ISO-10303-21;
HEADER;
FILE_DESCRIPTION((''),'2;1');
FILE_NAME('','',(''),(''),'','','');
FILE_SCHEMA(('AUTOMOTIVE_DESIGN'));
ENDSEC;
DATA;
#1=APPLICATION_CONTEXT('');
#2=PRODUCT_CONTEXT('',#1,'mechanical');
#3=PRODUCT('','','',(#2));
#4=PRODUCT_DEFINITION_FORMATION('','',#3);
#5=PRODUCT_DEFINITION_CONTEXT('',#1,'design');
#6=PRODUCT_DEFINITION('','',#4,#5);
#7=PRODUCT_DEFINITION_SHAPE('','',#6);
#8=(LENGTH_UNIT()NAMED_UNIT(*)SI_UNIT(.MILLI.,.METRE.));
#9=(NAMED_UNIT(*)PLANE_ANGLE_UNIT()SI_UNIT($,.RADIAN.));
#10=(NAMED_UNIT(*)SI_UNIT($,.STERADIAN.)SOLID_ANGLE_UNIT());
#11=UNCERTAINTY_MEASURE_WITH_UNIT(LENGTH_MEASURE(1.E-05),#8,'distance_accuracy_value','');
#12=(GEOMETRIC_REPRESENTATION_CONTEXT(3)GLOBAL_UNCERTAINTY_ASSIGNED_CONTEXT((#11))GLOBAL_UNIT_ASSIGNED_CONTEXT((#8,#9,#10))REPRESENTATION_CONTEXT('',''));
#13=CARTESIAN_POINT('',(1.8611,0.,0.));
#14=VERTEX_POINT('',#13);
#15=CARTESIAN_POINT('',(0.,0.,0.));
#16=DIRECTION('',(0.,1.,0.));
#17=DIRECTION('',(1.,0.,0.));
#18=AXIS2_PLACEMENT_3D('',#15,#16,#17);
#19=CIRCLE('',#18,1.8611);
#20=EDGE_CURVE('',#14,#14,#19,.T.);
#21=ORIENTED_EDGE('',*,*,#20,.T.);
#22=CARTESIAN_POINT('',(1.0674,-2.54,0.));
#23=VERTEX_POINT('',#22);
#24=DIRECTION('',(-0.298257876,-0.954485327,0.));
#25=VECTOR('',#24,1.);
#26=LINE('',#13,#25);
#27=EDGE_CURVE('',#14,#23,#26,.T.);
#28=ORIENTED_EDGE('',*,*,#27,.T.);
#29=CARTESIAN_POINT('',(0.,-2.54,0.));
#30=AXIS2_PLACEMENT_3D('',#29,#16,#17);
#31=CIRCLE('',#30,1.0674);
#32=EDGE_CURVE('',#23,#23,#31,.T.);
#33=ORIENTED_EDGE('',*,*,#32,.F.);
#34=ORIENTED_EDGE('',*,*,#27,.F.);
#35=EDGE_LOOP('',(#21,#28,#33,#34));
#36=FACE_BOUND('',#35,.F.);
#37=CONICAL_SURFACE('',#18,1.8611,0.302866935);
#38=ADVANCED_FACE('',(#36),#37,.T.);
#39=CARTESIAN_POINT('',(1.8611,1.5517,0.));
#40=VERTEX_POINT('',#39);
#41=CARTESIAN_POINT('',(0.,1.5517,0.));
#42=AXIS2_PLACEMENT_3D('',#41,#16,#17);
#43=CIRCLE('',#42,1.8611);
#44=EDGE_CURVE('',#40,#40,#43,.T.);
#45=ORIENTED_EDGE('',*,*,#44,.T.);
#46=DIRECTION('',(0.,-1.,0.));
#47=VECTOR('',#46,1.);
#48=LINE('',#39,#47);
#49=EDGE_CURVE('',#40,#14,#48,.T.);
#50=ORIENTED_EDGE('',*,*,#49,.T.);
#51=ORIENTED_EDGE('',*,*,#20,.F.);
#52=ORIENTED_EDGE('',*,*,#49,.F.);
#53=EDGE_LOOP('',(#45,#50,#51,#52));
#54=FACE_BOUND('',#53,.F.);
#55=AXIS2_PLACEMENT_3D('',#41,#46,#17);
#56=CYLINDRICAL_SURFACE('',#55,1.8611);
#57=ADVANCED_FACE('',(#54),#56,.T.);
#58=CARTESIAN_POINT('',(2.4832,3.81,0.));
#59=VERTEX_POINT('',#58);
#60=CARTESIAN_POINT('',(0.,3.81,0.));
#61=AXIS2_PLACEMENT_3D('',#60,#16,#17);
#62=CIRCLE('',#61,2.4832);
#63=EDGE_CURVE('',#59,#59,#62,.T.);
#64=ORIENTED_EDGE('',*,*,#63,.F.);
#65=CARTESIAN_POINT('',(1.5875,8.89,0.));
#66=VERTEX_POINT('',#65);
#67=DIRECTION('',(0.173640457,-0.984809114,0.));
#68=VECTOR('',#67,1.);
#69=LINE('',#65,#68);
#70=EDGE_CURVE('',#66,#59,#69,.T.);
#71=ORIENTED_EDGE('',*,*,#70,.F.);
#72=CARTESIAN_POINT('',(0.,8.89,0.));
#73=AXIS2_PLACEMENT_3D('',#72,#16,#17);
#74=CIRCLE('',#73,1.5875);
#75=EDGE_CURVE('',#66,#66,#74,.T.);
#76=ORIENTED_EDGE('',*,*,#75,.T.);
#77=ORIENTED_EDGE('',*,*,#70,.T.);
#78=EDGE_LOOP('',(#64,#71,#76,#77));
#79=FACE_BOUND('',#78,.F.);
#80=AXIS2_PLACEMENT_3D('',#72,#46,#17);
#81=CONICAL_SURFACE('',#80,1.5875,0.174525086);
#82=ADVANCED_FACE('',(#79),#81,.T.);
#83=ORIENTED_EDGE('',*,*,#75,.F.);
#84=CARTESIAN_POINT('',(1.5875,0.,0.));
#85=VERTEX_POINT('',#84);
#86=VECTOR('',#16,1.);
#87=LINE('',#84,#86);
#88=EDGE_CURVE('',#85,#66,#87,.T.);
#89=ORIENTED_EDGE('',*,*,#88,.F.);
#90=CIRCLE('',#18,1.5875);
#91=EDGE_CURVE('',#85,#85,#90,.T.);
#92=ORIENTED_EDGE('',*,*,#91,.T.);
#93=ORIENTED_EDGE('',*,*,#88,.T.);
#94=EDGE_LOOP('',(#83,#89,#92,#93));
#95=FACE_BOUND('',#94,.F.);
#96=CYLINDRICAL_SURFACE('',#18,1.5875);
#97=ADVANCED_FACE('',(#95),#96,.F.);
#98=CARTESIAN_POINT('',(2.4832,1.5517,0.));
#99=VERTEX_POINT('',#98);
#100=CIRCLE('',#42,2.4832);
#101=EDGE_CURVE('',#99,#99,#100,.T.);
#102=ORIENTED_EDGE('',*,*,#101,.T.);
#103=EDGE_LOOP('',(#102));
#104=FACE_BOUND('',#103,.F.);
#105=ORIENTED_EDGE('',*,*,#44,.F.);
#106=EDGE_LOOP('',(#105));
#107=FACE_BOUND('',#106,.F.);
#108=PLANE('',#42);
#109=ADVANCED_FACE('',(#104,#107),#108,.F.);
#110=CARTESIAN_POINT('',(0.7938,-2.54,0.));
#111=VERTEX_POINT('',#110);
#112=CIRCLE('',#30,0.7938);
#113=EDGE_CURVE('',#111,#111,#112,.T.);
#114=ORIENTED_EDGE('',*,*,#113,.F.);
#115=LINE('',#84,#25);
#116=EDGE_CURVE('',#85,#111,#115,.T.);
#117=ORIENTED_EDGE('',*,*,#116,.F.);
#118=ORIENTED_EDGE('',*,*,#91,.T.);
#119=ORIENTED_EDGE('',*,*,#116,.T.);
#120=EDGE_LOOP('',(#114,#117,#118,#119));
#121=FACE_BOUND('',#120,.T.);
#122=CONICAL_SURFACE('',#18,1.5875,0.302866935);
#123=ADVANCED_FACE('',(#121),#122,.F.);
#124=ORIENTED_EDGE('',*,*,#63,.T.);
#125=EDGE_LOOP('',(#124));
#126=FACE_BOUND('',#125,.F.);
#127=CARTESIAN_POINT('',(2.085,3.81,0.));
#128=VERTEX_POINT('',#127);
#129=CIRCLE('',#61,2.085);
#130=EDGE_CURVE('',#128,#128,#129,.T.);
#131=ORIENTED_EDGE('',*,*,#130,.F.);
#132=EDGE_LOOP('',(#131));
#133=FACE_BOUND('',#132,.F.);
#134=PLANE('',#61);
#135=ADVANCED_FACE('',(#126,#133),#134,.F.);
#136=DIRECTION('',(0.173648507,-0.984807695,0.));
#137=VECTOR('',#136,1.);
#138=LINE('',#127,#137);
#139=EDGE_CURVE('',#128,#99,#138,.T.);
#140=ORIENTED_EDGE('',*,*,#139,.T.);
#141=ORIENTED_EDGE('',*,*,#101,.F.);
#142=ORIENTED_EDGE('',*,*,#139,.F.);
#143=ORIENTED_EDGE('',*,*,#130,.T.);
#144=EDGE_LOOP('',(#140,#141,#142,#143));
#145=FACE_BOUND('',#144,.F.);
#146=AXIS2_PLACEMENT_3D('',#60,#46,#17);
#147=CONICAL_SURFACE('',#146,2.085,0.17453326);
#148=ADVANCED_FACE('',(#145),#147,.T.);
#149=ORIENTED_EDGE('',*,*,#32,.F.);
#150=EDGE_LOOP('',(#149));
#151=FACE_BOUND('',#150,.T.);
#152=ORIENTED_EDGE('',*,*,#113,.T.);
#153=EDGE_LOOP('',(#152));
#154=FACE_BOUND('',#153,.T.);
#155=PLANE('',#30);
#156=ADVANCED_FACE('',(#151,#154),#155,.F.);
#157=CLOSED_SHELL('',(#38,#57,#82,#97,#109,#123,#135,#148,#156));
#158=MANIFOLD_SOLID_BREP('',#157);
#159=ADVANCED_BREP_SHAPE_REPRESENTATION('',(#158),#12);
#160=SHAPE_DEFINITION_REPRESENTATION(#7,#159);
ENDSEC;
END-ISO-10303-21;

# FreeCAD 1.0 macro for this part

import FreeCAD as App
import Part
import Sketcher
Q = App.Units.Quantity

doc = App.newDocument("Part")
body = doc.addObject("PartDesign::Body", "Body")

sketch1 = body.newObject("Sketcher::SketchObject", "Sketch")
sketch1.AttachmentSupport = (doc.getObject("XY_Plane"), [""])
sketch1.MapMode = "FlatFace"
sketch1.addGeometry([
    Part.LineSegment(App.Vector(1.59, 8.89, 0), App.Vector(1.59, 0, 0)),
    Part.LineSegment(App.Vector(1.59, 0, 0), App.Vector(0.79, -2.54, 0)),
    Part.LineSegment(App.Vector(0.79, -2.54, 0), App.Vector(1.07, -2.54, 0)),
    Part.LineSegment(App.Vector(1.07, -2.54, 0), App.Vector(1.86, 0, 0)),
    Part.LineSegment(App.Vector(1.86, 0, 0), App.Vector(1.86, 1.55, 0)),
    Part.LineSegment(App.Vector(1.86, 1.55, 0), App.Vector(2.48, 1.55, 0)),
    Part.LineSegment(App.Vector(2.48, 1.55, 0), App.Vector(2.08, 3.81, 0)),
    Part.LineSegment(App.Vector(2.08, 3.81, 0), App.Vector(2.48, 3.81, 0)),
    Part.LineSegment(App.Vector(2.48, 3.81, 0), App.Vector(1.59, 8.89, 0)),
], False)
sketch1.addConstraint([
    Sketcher.Constraint("Coincident", 0, 2, 1, 1),
    Sketcher.Constraint("Coincident", 1, 2, 2, 1),
    Sketcher.Constraint("Coincident", 2, 2, 3, 1),
    Sketcher.Constraint("Coincident", 3, 2, 4, 1),
    Sketcher.Constraint("Coincident", 4, 2, 5, 1),
    Sketcher.Constraint("Coincident", 5, 2, 6, 1),
    Sketcher.Constraint("Coincident", 6, 2, 7, 1),
    Sketcher.Constraint("Coincident", 7, 2, 8, 1),
    Sketcher.Constraint("Coincident", 8, 2, 0, 1),
    Sketcher.Constraint("Vertical", 0),
    Sketcher.Constraint("Horizontal", 2),
    Sketcher.Constraint("Vertical", 4),
    Sketcher.Constraint("Horizontal", 5),
    Sketcher.Constraint("Horizontal", 7),
    Sketcher.Constraint("PointOnObject", 0, 2, -1),
    Sketcher.Constraint("PointOnObject", 3, 2, -1),
    Sketcher.Constraint("Parallel", 1, 3),
    Sketcher.Constraint("Parallel", 6, 8),
    Sketcher.Constraint("Vertical", 5, 2, 7, 2),
    Sketcher.Constraint("DistanceY", 0, 2, 0, 1, Q("0.35 in")),
    Sketcher.Constraint("DistanceY", 1, 2, -1, 1, Q("0.1 in")),
    Sketcher.Constraint("DistanceY", 4, 1, 4, 2, Q("0.0611 in")),
    Sketcher.Constraint("DistanceX", -1, 1, 0, 2, Q("0.0625 in")),
    Sketcher.Constraint("DistanceX", -1, 1, 1, 2, Q("0.031252 in")),
    Sketcher.Constraint("Angle", 6, Q("100 deg")),
    Sketcher.Constraint("DistanceX", 2, 1, 2, 2, Q("0.2736 mm")),
    Sketcher.Constraint("DistanceX", 7, 1, 7, 2, Q("0.3982 mm")),
])
revolution = body.newObject("PartDesign::Revolution", "Revolution")
revolution.Profile = sketch1
revolution.ReferenceAxis = (sketch1, ["V_Axis"])
revolution.Angle = 360

doc.recompute()
